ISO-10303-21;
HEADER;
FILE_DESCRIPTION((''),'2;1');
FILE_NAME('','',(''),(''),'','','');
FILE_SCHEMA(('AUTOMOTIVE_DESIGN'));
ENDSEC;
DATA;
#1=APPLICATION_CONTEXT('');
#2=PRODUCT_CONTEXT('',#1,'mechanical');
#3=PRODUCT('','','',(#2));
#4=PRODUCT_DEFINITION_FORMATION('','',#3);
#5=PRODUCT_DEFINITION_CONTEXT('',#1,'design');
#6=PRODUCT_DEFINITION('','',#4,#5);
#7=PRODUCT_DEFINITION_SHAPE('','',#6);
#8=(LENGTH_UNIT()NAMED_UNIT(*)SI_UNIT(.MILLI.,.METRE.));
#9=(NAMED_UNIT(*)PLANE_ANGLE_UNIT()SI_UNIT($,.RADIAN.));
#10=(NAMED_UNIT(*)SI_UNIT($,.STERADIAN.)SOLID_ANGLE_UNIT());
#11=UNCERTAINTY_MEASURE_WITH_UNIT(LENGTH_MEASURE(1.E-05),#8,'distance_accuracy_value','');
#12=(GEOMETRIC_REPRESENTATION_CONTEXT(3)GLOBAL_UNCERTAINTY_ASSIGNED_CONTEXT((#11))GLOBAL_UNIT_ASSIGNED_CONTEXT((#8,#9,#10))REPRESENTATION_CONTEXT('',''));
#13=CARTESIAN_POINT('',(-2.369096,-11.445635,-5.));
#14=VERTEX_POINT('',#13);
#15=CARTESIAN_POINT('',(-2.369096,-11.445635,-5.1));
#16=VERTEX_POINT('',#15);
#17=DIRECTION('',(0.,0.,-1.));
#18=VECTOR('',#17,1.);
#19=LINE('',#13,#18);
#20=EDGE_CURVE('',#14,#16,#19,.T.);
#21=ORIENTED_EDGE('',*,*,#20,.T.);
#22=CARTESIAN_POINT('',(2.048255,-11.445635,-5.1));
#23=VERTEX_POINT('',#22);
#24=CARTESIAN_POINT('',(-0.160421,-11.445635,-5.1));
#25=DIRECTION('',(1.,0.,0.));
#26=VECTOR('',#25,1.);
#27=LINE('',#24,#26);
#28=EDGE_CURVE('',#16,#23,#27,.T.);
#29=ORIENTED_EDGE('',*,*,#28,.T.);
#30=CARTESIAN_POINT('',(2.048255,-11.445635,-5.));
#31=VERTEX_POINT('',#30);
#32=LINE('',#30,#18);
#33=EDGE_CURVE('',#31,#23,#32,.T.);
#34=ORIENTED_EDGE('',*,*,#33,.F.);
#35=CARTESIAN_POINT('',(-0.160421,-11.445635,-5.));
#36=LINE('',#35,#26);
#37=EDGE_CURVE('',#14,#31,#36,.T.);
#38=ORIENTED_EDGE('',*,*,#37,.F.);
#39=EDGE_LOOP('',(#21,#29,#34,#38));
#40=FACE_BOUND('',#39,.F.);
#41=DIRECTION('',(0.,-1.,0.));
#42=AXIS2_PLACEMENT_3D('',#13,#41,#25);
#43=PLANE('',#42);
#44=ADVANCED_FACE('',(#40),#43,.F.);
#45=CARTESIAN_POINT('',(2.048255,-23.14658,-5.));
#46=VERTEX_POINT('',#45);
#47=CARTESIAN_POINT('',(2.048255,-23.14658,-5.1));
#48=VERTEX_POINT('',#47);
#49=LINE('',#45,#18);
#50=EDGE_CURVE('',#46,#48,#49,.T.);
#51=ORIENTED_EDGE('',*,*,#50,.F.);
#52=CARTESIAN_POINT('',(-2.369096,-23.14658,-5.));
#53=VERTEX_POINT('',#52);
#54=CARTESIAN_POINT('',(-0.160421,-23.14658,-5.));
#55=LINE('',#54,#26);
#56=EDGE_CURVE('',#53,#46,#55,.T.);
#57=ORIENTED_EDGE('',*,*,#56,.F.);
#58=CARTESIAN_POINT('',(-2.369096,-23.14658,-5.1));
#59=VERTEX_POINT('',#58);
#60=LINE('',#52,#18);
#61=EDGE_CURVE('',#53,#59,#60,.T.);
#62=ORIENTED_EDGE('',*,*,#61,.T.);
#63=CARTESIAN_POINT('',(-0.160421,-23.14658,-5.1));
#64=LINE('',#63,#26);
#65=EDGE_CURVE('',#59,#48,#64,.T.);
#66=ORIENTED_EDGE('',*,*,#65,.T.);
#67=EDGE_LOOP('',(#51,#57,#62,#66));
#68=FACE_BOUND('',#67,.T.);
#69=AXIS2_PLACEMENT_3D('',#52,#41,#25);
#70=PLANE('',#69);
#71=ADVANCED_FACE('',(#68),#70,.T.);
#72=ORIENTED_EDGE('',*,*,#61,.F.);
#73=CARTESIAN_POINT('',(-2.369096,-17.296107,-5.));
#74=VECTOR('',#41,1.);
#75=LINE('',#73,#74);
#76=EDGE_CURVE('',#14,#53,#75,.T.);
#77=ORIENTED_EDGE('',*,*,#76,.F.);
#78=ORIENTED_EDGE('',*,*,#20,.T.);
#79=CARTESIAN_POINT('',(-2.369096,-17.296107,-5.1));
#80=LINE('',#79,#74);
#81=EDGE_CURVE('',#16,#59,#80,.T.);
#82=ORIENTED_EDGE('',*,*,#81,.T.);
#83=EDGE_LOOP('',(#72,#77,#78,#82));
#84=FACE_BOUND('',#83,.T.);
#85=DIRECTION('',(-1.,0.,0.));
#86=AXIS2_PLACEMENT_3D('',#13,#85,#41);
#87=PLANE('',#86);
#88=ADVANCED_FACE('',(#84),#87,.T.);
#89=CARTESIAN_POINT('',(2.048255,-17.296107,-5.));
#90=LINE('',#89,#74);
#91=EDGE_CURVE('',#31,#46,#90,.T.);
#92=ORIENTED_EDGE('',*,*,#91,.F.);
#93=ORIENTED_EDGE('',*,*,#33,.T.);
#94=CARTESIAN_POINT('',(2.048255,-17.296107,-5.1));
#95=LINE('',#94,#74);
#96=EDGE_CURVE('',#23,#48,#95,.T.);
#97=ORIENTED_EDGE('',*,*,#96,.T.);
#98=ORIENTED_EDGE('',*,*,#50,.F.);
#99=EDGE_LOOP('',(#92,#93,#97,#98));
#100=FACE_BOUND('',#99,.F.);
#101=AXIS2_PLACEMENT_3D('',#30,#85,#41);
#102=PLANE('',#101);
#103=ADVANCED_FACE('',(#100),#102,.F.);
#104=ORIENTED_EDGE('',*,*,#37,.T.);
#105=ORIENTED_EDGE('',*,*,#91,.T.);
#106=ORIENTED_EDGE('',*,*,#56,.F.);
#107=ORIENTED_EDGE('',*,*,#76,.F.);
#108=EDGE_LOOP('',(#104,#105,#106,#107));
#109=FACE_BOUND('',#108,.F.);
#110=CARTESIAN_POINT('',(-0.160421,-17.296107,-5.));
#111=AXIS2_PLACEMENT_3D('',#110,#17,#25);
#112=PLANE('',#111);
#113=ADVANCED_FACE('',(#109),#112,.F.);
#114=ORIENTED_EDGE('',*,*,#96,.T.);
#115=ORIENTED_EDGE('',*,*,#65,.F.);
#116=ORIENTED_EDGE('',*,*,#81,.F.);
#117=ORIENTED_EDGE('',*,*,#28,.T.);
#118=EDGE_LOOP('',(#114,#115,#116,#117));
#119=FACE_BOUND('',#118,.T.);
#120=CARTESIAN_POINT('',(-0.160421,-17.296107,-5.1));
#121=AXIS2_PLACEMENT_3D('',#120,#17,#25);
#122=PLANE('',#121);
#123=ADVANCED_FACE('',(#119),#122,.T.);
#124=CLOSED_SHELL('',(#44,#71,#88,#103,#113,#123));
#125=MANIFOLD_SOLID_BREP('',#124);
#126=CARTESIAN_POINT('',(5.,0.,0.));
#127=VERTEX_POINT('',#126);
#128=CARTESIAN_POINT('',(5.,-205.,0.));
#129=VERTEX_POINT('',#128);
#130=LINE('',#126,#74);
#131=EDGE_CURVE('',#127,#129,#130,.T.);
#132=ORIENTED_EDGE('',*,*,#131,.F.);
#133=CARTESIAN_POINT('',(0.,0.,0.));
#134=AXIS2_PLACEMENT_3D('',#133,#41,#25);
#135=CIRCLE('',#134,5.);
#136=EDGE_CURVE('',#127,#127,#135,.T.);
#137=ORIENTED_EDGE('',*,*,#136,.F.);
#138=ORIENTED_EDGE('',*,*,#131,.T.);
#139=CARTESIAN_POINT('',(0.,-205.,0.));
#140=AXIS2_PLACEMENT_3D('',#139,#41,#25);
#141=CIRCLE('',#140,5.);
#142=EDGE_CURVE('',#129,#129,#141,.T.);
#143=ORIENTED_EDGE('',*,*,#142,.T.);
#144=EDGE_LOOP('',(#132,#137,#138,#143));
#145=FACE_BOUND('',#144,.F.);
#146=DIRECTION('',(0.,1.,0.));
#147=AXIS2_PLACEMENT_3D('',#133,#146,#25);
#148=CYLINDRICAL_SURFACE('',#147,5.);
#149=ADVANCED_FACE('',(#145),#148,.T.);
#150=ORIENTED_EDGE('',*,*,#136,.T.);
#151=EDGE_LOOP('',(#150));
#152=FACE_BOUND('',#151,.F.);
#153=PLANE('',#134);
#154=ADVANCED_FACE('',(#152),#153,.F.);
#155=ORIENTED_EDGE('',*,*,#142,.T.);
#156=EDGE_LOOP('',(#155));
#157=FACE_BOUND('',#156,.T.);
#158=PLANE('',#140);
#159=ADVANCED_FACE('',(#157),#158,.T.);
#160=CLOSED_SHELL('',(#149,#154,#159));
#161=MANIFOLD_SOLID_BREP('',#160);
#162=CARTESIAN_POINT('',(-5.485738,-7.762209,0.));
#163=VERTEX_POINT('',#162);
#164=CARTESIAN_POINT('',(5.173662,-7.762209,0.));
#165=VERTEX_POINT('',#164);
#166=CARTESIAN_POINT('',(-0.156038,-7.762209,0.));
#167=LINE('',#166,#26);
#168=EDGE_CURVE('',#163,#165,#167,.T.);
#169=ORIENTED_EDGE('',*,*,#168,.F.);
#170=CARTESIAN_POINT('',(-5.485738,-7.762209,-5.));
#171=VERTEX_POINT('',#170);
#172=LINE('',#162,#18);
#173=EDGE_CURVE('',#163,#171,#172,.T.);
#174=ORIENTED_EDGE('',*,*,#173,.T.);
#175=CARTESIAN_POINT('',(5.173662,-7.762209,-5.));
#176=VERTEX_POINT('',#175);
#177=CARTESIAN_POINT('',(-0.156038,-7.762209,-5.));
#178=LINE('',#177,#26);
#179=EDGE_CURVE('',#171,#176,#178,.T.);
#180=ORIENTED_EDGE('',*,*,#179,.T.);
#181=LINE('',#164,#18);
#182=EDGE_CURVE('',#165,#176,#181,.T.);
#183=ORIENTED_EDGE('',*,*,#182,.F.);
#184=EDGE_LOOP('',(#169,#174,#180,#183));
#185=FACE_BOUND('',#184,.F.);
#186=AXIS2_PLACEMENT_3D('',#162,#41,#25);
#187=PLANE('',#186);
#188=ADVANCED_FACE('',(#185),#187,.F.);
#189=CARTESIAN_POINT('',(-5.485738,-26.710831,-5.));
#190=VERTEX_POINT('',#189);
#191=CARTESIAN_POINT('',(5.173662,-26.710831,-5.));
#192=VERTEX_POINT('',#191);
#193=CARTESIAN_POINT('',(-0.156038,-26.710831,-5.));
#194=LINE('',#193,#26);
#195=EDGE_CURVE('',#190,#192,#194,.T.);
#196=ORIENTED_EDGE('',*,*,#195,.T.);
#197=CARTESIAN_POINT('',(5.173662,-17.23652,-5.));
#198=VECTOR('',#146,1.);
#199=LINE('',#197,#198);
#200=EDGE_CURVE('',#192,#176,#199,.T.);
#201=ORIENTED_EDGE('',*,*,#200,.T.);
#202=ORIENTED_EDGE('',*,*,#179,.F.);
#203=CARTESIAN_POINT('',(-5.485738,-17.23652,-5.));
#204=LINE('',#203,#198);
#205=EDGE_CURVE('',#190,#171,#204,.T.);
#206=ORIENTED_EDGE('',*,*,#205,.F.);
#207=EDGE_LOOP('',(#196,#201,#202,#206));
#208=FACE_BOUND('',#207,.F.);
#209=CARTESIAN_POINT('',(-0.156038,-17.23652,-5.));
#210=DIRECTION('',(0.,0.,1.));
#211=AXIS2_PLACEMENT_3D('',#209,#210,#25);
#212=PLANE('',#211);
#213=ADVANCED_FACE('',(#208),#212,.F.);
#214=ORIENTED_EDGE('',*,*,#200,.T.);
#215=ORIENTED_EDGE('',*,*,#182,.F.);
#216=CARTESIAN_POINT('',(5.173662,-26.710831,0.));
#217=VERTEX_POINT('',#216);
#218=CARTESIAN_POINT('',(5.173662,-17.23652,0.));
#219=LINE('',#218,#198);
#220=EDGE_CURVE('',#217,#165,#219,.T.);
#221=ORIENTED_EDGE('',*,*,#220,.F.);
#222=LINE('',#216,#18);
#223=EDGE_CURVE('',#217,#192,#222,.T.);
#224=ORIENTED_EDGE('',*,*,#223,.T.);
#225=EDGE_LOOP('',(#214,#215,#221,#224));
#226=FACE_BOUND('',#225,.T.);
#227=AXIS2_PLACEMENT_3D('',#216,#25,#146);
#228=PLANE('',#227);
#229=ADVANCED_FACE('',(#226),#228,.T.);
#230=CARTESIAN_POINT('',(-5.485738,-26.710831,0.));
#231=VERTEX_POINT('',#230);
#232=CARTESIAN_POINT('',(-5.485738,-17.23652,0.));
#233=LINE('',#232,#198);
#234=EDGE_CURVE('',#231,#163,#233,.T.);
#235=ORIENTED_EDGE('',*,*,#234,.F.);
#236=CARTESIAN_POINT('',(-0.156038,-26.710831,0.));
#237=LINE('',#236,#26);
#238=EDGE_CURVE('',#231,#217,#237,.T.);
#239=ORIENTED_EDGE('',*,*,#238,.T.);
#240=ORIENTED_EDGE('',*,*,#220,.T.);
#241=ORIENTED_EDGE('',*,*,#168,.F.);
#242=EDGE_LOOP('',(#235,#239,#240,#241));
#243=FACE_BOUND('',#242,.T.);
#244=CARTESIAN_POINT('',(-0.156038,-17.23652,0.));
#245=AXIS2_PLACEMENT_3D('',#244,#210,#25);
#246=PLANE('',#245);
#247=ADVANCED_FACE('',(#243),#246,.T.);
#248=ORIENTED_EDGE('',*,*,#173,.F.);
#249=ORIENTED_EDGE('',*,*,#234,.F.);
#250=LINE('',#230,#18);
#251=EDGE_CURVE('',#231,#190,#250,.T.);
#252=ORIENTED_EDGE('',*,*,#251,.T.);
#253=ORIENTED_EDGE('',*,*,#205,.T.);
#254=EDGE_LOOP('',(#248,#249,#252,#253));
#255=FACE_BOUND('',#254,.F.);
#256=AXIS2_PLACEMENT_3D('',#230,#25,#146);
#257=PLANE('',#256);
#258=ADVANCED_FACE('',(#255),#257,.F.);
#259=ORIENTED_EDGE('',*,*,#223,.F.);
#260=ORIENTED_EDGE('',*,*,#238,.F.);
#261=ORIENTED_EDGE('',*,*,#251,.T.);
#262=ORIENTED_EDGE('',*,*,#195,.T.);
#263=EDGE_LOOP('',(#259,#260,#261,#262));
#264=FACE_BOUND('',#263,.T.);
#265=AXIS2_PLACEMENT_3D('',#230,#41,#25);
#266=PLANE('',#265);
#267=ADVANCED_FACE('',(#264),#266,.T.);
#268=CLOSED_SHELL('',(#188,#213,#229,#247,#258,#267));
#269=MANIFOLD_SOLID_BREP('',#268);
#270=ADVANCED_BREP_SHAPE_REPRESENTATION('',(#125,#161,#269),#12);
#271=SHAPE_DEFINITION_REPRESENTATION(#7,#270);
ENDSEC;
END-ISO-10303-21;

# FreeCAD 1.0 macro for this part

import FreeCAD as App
import Part
import Sketcher
Q = App.Units.Quantity

doc = App.newDocument("Part")
body = doc.addObject("PartDesign::Body", "Body")

sketch1 = doc.addObject("Sketcher::SketchObject", "Sketch")
body.addObject(sketch1)
sketch1.AttachmentSupport = (doc.XZ_Plane, [""])
sketch1.MapMode = "FlatFace"
sketch1.addGeometry(Part.Circle(App.Vector(0, 0, 0), App.Vector(0, 0, 1), 5), False)
sketch1.addConstraint([
    Sketcher.Constraint("Coincident", 0, 3, -1, 1),
    Sketcher.Constraint("Diameter", 0, Q("10 mm")),
])
pad1 = doc.addObject("PartDesign::Pad", "Pad")
body.addObject(pad1)
pad1.Profile = sketch1
pad1.Length = 205
body2 = doc.addObject("PartDesign::Body", "Body001")

sketch2 = doc.addObject("Sketcher::SketchObject", "Sketch001")
body2.addObject(sketch2)
sketch2.AttachmentSupport = (doc.getObject("XY_Plane001"), [""])
sketch2.MapMode = "FlatFace"
sketch2.addGeometry([
    Part.LineSegment(App.Vector(-5, -8, 0), App.Vector(-5, -27, 0)),
    Part.LineSegment(App.Vector(-5, -27, 0), App.Vector(5, -27, 0)),
    Part.LineSegment(App.Vector(5, -27, 0), App.Vector(5, -8, 0)),
    Part.LineSegment(App.Vector(5, -8, 0), App.Vector(-5, -8, 0)),
], False)
sketch2.addConstraint([
    Sketcher.Constraint("Coincident", 0, 2, 1, 1),
    Sketcher.Constraint("Coincident", 1, 2, 2, 1),
    Sketcher.Constraint("Coincident", 2, 2, 3, 1),
    Sketcher.Constraint("Coincident", 3, 2, 0, 1),
    Sketcher.Constraint("Vertical", 0),
    Sketcher.Constraint("Horizontal", 1),
    Sketcher.Constraint("Vertical", 2),
    Sketcher.Constraint("Horizontal", 3),
    Sketcher.Constraint("DistanceX", 1, 1, 1, 2, Q("10.6594 mm")),
    Sketcher.Constraint("DistanceY", 0, 2, 0, 1, Q("18.948621 mm")),
    Sketcher.Constraint("DistanceY", 0, 2, -1, 1, Q("26.710831 mm")),
    Sketcher.Constraint("DistanceX", 0, 2, -1, 1, Q("5.485738 mm")),
])
pad2 = doc.addObject("PartDesign::Pad", "Pad001")
body2.addObject(pad2)
pad2.Profile = sketch2
pad2.Length = 5
pad2.Reversed = True
body3 = doc.addObject("PartDesign::Body", "Body002")

sketch3 = doc.addObject("Sketcher::SketchObject", "Sketch002")
body3.addObject(sketch3)
sketch3.AttachmentSupport = (doc.getObject("XY_Plane002"), [""])
sketch3.MapMode = "FlatFace"
sketch3.AttachmentOffset = App.Placement(App.Vector(0, 0, -5), App.Rotation())
sketch3.addGeometry([
    Part.LineSegment(App.Vector(-2.4, -23.1, 0), App.Vector(-2.4, -11.4, 0)),
    Part.LineSegment(App.Vector(-2.4, -11.4, 0), App.Vector(2, -11.4, 0)),
    Part.LineSegment(App.Vector(2, -11.4, 0), App.Vector(2, -23.1, 0)),
    Part.LineSegment(App.Vector(2, -23.1, 0), App.Vector(-2.4, -23.1, 0)),
], False)
sketch3.addConstraint([
    Sketcher.Constraint("Coincident", 0, 2, 1, 1),
    Sketcher.Constraint("Coincident", 1, 2, 2, 1),
    Sketcher.Constraint("Coincident", 2, 2, 3, 1),
    Sketcher.Constraint("Coincident", 3, 2, 0, 1),
    Sketcher.Constraint("Vertical", 0),
    Sketcher.Constraint("Horizontal", 1),
    Sketcher.Constraint("Vertical", 2),
    Sketcher.Constraint("Horizontal", 3),
    Sketcher.Constraint("DistanceX", 1, 1, 1, 2, Q("4.417351 mm")),
    Sketcher.Constraint("DistanceY", 0, 1, 0, 2, Q("11.700945 mm")),
    Sketcher.Constraint("DistanceY", 2, 2, -1, 1, Q("23.14658 mm")),
    Sketcher.Constraint("DistanceX", 0, 2, -1, 1, Q("2.369096 mm")),
])
pad3 = doc.addObject("PartDesign::Pad", "Pad002")
body3.addObject(pad3)
pad3.Profile = sketch3
pad3.Length = 0.1
pad3.Reversed = True

doc.recompute()
